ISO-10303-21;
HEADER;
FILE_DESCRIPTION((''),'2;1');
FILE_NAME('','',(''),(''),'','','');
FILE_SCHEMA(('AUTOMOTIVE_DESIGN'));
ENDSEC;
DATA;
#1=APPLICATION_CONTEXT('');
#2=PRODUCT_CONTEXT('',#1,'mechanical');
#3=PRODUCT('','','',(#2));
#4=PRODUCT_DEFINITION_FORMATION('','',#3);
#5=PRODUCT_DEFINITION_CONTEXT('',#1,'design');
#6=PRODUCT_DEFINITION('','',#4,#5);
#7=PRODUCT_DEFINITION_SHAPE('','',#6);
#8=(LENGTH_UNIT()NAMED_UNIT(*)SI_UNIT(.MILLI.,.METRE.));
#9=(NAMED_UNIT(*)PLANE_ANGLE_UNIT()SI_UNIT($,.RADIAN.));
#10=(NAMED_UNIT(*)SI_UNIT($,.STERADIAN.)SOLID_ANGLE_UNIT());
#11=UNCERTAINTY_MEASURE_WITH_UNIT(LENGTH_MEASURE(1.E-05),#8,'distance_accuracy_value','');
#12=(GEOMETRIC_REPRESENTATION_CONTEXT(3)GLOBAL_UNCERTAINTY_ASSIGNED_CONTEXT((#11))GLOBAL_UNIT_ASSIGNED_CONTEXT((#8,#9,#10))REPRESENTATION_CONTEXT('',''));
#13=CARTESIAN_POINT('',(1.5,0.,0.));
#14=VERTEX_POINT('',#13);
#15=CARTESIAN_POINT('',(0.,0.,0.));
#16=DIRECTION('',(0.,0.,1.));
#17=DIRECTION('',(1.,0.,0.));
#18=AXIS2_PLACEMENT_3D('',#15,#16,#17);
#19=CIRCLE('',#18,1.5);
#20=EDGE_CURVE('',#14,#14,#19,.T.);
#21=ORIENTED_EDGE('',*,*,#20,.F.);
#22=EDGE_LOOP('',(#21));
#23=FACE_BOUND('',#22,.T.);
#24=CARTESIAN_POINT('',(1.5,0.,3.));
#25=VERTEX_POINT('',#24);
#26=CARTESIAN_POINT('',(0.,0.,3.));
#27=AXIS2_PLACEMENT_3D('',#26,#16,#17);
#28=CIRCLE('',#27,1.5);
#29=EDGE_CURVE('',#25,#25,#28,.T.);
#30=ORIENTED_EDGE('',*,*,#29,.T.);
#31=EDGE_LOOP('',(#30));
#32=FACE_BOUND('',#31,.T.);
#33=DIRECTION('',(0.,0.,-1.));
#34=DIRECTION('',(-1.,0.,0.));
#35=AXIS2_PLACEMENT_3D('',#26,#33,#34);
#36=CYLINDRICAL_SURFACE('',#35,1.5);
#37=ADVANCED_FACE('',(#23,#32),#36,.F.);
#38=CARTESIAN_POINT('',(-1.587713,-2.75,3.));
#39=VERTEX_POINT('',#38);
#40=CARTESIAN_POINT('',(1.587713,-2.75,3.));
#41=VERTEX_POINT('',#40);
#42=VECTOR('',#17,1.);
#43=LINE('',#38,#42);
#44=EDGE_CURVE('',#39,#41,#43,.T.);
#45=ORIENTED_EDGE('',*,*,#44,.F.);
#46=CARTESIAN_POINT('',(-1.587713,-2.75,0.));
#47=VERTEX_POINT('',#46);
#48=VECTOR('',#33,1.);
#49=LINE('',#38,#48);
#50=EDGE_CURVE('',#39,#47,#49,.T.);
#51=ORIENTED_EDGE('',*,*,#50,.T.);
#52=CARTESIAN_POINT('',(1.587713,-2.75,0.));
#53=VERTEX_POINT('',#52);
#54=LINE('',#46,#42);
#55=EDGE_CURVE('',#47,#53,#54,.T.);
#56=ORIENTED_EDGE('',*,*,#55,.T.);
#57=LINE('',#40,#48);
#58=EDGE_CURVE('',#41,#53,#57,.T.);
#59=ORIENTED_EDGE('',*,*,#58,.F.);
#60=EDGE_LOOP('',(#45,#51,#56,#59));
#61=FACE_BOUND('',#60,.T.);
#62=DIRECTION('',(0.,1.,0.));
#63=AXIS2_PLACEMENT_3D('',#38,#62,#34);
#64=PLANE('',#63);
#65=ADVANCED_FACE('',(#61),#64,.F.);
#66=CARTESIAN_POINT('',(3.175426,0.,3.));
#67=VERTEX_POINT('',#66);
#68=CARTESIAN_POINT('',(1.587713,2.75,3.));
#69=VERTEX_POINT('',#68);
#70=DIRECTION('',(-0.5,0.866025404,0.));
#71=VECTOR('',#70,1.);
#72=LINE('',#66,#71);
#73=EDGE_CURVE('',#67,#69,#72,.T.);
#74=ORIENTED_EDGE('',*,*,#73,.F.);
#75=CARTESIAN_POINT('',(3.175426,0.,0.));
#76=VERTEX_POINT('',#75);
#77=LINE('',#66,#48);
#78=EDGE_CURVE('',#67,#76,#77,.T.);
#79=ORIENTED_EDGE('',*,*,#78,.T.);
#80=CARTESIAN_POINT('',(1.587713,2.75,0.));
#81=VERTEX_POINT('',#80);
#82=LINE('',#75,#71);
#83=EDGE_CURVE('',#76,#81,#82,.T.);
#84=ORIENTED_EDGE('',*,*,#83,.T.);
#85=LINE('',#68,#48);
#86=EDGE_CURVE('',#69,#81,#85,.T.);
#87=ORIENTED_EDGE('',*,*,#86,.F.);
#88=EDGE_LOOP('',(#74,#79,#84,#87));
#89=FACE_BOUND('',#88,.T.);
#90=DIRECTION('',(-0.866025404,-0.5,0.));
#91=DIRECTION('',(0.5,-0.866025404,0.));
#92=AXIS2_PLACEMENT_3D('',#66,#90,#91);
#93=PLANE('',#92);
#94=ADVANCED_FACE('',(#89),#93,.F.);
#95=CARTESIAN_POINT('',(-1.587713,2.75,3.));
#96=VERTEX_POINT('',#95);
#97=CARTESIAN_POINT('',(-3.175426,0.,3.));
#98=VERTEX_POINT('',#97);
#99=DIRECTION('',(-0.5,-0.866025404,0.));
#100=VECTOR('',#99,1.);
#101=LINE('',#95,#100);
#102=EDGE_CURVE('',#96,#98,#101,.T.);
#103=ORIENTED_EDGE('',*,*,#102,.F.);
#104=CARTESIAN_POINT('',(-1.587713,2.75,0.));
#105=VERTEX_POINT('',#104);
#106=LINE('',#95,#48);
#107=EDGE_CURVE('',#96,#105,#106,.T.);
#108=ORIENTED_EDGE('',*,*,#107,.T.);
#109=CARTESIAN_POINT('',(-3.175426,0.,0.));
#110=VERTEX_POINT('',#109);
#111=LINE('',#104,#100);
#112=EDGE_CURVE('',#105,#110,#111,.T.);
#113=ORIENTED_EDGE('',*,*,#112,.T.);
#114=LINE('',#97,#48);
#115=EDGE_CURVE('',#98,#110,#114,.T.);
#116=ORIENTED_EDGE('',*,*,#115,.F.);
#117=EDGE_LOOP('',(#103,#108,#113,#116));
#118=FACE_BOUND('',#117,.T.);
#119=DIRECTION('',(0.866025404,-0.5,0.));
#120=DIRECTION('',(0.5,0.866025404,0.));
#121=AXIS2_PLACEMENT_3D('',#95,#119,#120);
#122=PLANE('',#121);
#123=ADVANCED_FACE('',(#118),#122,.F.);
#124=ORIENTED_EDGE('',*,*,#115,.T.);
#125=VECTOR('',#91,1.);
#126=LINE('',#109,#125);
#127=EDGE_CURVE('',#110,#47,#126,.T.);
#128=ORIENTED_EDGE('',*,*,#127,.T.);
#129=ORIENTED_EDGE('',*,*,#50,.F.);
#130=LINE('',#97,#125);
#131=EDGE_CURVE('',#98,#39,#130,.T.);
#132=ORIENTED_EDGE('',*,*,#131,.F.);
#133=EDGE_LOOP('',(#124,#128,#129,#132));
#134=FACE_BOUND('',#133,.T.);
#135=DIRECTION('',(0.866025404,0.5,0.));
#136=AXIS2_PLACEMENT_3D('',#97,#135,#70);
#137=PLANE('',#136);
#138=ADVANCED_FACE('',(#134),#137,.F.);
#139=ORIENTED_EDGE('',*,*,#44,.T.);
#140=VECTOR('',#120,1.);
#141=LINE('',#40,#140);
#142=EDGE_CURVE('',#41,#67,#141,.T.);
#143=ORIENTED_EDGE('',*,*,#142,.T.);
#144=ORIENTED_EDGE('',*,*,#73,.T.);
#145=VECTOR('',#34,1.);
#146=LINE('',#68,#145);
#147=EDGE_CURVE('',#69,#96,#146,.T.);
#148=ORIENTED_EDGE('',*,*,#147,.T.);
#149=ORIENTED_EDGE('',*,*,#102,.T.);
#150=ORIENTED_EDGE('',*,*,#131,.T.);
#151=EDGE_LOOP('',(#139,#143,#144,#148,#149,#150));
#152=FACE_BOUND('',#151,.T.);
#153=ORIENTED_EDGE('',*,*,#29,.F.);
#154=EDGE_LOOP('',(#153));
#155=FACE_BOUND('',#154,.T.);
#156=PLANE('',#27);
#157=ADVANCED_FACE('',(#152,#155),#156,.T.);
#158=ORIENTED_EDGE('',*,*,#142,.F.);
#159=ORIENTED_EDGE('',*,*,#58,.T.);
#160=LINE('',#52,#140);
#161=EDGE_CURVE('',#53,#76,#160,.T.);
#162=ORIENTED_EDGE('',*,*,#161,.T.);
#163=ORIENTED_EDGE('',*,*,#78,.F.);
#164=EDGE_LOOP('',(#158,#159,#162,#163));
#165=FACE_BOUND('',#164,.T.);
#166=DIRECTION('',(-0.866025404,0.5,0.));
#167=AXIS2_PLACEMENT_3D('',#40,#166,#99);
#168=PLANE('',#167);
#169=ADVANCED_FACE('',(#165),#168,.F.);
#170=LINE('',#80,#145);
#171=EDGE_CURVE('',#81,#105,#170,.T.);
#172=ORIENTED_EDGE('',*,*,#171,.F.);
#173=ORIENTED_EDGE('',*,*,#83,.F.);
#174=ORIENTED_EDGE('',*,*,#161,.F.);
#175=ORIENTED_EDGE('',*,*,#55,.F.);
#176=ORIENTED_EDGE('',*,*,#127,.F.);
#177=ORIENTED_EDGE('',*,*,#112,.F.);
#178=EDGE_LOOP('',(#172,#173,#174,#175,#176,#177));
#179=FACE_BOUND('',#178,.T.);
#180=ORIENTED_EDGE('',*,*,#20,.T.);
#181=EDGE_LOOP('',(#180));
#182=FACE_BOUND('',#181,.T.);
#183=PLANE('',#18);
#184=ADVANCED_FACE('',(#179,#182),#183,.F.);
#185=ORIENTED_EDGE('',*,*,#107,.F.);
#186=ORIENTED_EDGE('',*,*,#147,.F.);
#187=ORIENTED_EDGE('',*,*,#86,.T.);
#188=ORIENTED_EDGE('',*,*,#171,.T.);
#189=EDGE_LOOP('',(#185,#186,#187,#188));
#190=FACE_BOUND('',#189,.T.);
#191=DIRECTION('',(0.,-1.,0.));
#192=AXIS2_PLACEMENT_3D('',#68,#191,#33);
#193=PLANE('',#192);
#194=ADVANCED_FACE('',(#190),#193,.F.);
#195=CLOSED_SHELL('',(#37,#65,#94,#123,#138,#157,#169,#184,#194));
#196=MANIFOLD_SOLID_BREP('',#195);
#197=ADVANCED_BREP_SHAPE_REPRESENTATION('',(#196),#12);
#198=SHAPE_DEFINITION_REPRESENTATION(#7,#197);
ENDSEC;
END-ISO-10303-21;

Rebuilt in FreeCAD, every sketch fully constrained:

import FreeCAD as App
import Part
import Sketcher
Q = App.Units.Quantity

doc = App.newDocument("Part")
params = doc.addObject("Spreadsheet::Sheet", "Params")
for row, (alias, value) in enumerate([
    ("sketch1_diameter", "3 mm"),
    ("pad1_length", "3 mm"),
], start=1):
    params.set(f"A{row}", alias)
    params.set(f"B{row}", "=" + value)
    params.setAlias(f"B{row}", alias)

body = doc.addObject("PartDesign::Body", "Body")

sketch1 = body.newObject("Sketcher::SketchObject", "Sketch")
sketch1.AttachmentSupport = (doc.getObject("XY_Plane"), [""])
sketch1.MapMode = "FlatFace"
sketch1.addGeometry([
    Part.LineSegment(App.Vector(3.2, 0, 0), App.Vector(1.6, 2.8, 0)),
    Part.LineSegment(App.Vector(1.6, 2.8, 0), App.Vector(-1.6, 2.8, 0)),
    Part.LineSegment(App.Vector(-1.6, 2.8, 0), App.Vector(-3.2, 0, 0)),
    Part.LineSegment(App.Vector(-3.2, 0, 0), App.Vector(-1.6, -2.8, 0)),
    Part.LineSegment(App.Vector(-1.6, -2.8, 0), App.Vector(1.6, -2.8, 0)),
    Part.LineSegment(App.Vector(1.6, -2.8, 0), App.Vector(3.2, 0, 0)),
    Part.Circle(App.Vector(0, 0, 0), App.Vector(0, 0, 1), 1.5),
], False)
sketch1.addConstraint([
    Sketcher.Constraint("Coincident", 0, 2, 1, 1),
    Sketcher.Constraint("Coincident", 1, 2, 2, 1),
    Sketcher.Constraint("Coincident", 2, 2, 3, 1),
    Sketcher.Constraint("Coincident", 3, 2, 4, 1),
    Sketcher.Constraint("Coincident", 4, 2, 5, 1),
    Sketcher.Constraint("Coincident", 5, 2, 0, 1),
    Sketcher.Constraint("Horizontal", 1),
    Sketcher.Constraint("Horizontal", 4),
    Sketcher.Constraint("Coincident", 6, 3, -1, 1),
    Sketcher.Constraint("Symmetric", 0, 2, 3, 2, -1, 1),
    Sketcher.Constraint("Symmetric", 2, 2, 5, 2, -1, 1),
    Sketcher.Constraint("PointOnObject", 2, 2, -1),
    Sketcher.Constraint("Parallel", 2, 5),
    Sketcher.Constraint("Vertical", 1, 2, 3, 2),
    Sketcher.Constraint("Diameter", 6, Q("3 mm")),
    Sketcher.Constraint("Angle", 0, Q("120 deg")),
    Sketcher.Constraint("DistanceY", 3, 2, 1, 2, Q("5.5 mm")),
    Sketcher.Constraint("DistanceX", 1, 2, 1, 1, Q("3.175426 mm")),
])
sketch1.setExpression("Constraints[14]", "Params.sketch1_diameter")
pad1 = body.newObject("PartDesign::Pad", "Pad")
pad1.Profile = sketch1
pad1.setExpression("Length", "Params.pad1_length")

doc.recompute()
